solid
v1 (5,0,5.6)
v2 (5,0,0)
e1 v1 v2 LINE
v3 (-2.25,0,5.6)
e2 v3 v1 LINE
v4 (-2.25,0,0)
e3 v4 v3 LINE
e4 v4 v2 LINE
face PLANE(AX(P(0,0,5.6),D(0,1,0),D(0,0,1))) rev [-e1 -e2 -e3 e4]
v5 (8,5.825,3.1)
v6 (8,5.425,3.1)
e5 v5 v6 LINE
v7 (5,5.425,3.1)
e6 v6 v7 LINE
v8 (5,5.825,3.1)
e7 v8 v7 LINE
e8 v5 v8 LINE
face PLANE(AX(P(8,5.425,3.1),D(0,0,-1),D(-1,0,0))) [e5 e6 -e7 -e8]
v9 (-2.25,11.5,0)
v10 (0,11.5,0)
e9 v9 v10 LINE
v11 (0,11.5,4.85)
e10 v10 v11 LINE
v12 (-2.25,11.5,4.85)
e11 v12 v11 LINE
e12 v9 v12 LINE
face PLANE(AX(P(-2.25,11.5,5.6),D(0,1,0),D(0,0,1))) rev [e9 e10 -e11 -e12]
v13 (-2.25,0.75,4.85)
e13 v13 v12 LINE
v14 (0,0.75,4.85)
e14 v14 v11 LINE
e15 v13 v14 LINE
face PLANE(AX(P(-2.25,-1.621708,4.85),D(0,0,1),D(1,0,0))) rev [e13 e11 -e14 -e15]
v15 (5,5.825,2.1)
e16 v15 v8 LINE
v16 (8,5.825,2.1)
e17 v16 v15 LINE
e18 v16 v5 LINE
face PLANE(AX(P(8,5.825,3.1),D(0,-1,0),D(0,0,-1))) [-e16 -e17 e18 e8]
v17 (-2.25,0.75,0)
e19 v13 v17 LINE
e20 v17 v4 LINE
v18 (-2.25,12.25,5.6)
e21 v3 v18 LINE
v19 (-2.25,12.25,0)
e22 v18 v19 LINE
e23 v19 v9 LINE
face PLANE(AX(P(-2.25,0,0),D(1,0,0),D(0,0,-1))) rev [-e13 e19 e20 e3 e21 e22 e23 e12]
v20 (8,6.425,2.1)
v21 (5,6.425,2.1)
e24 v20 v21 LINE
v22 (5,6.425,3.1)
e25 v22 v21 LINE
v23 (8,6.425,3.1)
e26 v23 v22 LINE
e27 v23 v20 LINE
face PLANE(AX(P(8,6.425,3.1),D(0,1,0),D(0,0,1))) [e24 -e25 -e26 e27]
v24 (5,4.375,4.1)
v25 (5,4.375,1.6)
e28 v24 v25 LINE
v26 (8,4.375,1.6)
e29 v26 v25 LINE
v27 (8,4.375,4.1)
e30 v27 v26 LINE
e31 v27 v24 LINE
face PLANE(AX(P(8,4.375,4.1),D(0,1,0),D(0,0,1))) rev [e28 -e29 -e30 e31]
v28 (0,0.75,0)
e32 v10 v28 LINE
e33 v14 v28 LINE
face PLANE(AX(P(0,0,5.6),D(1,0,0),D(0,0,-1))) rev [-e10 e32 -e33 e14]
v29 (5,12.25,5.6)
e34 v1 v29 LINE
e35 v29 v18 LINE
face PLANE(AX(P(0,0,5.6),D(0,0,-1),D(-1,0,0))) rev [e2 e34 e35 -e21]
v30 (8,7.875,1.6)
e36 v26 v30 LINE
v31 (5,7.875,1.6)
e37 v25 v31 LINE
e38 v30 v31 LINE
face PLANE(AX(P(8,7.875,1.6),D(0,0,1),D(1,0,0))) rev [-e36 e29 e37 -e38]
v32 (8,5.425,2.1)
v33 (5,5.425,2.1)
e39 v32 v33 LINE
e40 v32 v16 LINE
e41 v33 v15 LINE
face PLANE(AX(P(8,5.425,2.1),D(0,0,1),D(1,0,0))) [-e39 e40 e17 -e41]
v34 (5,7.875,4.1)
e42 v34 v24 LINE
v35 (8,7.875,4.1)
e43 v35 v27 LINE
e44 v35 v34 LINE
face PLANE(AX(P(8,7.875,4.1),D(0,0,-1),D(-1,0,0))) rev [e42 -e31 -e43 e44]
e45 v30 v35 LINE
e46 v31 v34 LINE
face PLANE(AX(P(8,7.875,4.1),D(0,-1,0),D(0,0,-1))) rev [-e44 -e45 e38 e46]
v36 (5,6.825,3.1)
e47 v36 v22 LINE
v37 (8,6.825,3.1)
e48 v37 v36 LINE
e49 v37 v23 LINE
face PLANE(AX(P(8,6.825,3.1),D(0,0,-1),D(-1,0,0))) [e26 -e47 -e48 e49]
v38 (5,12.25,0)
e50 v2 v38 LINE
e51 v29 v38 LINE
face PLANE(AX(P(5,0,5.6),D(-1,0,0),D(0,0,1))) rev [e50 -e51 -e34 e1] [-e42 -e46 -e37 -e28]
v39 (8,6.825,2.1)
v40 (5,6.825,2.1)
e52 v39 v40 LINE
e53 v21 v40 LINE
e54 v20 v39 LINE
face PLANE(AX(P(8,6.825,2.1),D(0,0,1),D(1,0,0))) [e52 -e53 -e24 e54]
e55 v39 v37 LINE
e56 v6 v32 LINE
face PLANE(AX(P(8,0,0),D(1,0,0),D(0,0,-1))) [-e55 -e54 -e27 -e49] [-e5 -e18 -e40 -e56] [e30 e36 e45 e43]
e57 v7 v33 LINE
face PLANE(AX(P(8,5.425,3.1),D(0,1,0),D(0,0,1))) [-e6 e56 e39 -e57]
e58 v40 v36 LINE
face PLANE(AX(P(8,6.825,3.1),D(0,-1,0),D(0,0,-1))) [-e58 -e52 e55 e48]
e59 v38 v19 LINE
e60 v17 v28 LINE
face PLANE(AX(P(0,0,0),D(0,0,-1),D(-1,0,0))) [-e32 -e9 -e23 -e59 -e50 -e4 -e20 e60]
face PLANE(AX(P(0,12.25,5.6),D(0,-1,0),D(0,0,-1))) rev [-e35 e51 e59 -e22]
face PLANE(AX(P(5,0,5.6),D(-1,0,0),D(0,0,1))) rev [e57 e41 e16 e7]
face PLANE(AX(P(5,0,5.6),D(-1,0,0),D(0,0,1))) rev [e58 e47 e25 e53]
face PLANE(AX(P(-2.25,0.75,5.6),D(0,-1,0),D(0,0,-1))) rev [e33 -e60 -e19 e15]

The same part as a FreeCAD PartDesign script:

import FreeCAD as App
import Part
import Sketcher
from FreeCAD import Vector
Q = App.Units.Quantity


def add_polygon(sketch, points):
    """Adds a closed chain of lines whose ends are joined by coincident constraints."""
    first, n = sketch.GeometryCount, len(points)
    for a, b in zip(points, points[1:] + points[:1]):
        sketch.addGeometry(Part.LineSegment(App.Vector(*a, 0), App.Vector(*b, 0)), False)
    for i in range(n):
        sketch.addConstraint(Sketcher.Constraint("Coincident", first + i, 2, first + (i + 1) % n, 1))

doc = App.newDocument("Part")
body = doc.addObject("PartDesign::Body", "Body")

# Sketch on XY plane
sketch1 = body.newObject("Sketcher::SketchObject", "Sketch")
sketch1.AttachmentSupport = (doc.getObject("XY_Plane"), [""])
sketch1.MapMode = "FlatFace"
add_polygon(sketch1, [(0, 12), (0, 0), (5, 0), (5, 12)])  # lines 0-3
sketch1.addConstraint([
    Sketcher.Constraint("Vertical", 0),
    Sketcher.Constraint("Horizontal", 1),
    Sketcher.Constraint("Vertical", 2),
    Sketcher.Constraint("Horizontal", 3),
    Sketcher.Constraint("Coincident", 0, 2, -1, 1),
    Sketcher.Constraint("DistanceX", 1, 1, 1, 2, Q("5 mm")),
    Sketcher.Constraint("DistanceY", 0, 2, 0, 1, Q("12.25 mm")),
])
pad1 = body.newObject("PartDesign::Pad", "Pad")
pad1.Profile = sketch1
pad1.Length = 5.6

# Sketch on YZ plane
sketch2 = body.newObject("Sketcher::SketchObject", "Sketch001")
sketch2.AttachmentSupport = (doc.getObject("YZ_Plane"), [""])
sketch2.MapMode = "FlatFace"
sketch2.AttachmentOffset = App.Placement(Vector(0, 0, 5), App.Rotation())
add_polygon(sketch2, [(7.88, 4.1), (4.38, 4.1), (4.38, 1.6), (7.88, 1.6)])  # lines 0-3
add_polygon(sketch2, [(5.42, 2.1), (5.42, 3.1), (5.83, 3.1), (5.83, 2.1)])  # lines 4-7
add_polygon(sketch2, [(6.42, 2.1), (6.42, 3.1), (6.83, 3.1), (6.83, 2.1)])  # lines 8-11
sketch2.addConstraint([
    Sketcher.Constraint("Horizontal", 0),
    Sketcher.Constraint("Vertical", 1),
    Sketcher.Constraint("Horizontal", 2),
    Sketcher.Constraint("Vertical", 3),
    Sketcher.Constraint("Vertical", 4),
    Sketcher.Constraint("Horizontal", 5),
    Sketcher.Constraint("Vertical", 6),
    Sketcher.Constraint("Horizontal", 7),
    Sketcher.Constraint("Vertical", 8),
    Sketcher.Constraint("Horizontal", 9),
    Sketcher.Constraint("Vertical", 10),
    Sketcher.Constraint("Horizontal", 11),
    Sketcher.Constraint("Horizontal", 5, 2, 8, 2),
    Sketcher.Constraint("Horizontal", 7, 2, 10, 2),
    Sketcher.Constraint("Equal", 7, 9),
    Sketcher.Constraint("DistanceY", 4, 1, 4, 2, Q("1 mm")),
    Sketcher.Constraint("DistanceX", 0, 2, 0, 1, Q("3.5 mm")),
    Sketcher.Constraint("DistanceX", 5, 1, 5, 2, Q("0.4 mm")),
    Sketcher.Constraint("DistanceY", 1, 2, 1, 1, Q("2.5 mm")),
    Sketcher.Constraint("DistanceY", 4, 2, 0, 2, Q("1 mm")),
    Sketcher.Constraint("DistanceX", 4, 2, 8, 2, Q("1 mm")),
    Sketcher.Constraint("DistanceY", -1, 1, 0, 2, Q("4.1 mm")),
    Sketcher.Constraint("DistanceX", 0, 2, 4, 2, Q("1.05 mm")),
    Sketcher.Constraint("DistanceX", -1, 1, 0, 2, Q("4.375 mm")),
])
pad2 = body.newObject("PartDesign::Pad", "Pad001")
pad2.Profile = sketch2
pad2.Length = 3

# Sketch on YZ plane
sketch3 = body.newObject("Sketcher::SketchObject", "Sketch002")
sketch3.AttachmentSupport = (doc.getObject("YZ_Plane"), [""])
sketch3.MapMode = "FlatFace"
add_polygon(sketch3, [(12.2, 0), (11.5, 0), (11.5, 5.6), (12.2, 5.6)])  # lines 0-3
add_polygon(sketch3, [(0.8, 0), (0, 0), (0, 5.6), (0.8, 5.6)])  # lines 4-7
sketch3.addConstraint([
    Sketcher.Constraint("Horizontal", 0),
    Sketcher.Constraint("Vertical", 1),
    Sketcher.Constraint("Horizontal", 2),
    Sketcher.Constraint("Vertical", 3),
    Sketcher.Constraint("Horizontal", 4),
    Sketcher.Constraint("Vertical", 5),
    Sketcher.Constraint("Horizontal", 6),
    Sketcher.Constraint("Vertical", 7),
    Sketcher.Constraint("Coincident", 4, 2, -1, 1),
    Sketcher.Constraint("PointOnObject", 0, 2, -1),
    Sketcher.Constraint("Horizontal", 2, 2, 5, 2),
    Sketcher.Constraint("Equal", 2, 4),
    Sketcher.Constraint("DistanceY", 1, 1, 1, 2, Q("5.6 mm")),
    Sketcher.Constraint("DistanceX", 0, 2, 0, 1, Q("0.75 mm")),
    Sketcher.Constraint("DistanceX", -1, 1, 0, 2, Q("11.5 mm")),
])
pad3 = body.newObject("PartDesign::Pad", "Pad002")
pad3.Profile = sketch3
pad3.Length = 2.25
pad3.Reversed = True

# Sketch on XZ plane
sketch4 = body.newObject("Sketcher::SketchObject", "Sketch003")
sketch4.AttachmentSupport = (doc.getObject("XZ_Plane"), [""])
sketch4.MapMode = "FlatFace"
sketch4.AttachmentOffset = App.Placement(Vector(0, 0, -11.5), App.Rotation())
add_polygon(sketch4, [(-2.2, 5.6), (-2.2, 4.8), (0, 4.8), (0, 5.6)])  # lines 0-3
sketch4.addConstraint([
    Sketcher.Constraint("Vertical", 0),
    Sketcher.Constraint("Horizontal", 1),
    Sketcher.Constraint("Vertical", 2),
    Sketcher.Constraint("Horizontal", 3),
    Sketcher.Constraint("PointOnObject", 1, 2, -2),
    Sketcher.Constraint("DistanceX", 1, 1, 1, 2, Q("2.25 mm")),
    Sketcher.Constraint("DistanceY", 0, 2, 0, 1, Q("0.75 mm")),
    Sketcher.Constraint("DistanceY", -1, 1, 2, 2, Q("5.6 mm")),
])
pad4 = body.newObject("PartDesign::Pad", "Pad003")
pad4.Profile = sketch4
pad4.Length = 10.75

doc.recompute()
